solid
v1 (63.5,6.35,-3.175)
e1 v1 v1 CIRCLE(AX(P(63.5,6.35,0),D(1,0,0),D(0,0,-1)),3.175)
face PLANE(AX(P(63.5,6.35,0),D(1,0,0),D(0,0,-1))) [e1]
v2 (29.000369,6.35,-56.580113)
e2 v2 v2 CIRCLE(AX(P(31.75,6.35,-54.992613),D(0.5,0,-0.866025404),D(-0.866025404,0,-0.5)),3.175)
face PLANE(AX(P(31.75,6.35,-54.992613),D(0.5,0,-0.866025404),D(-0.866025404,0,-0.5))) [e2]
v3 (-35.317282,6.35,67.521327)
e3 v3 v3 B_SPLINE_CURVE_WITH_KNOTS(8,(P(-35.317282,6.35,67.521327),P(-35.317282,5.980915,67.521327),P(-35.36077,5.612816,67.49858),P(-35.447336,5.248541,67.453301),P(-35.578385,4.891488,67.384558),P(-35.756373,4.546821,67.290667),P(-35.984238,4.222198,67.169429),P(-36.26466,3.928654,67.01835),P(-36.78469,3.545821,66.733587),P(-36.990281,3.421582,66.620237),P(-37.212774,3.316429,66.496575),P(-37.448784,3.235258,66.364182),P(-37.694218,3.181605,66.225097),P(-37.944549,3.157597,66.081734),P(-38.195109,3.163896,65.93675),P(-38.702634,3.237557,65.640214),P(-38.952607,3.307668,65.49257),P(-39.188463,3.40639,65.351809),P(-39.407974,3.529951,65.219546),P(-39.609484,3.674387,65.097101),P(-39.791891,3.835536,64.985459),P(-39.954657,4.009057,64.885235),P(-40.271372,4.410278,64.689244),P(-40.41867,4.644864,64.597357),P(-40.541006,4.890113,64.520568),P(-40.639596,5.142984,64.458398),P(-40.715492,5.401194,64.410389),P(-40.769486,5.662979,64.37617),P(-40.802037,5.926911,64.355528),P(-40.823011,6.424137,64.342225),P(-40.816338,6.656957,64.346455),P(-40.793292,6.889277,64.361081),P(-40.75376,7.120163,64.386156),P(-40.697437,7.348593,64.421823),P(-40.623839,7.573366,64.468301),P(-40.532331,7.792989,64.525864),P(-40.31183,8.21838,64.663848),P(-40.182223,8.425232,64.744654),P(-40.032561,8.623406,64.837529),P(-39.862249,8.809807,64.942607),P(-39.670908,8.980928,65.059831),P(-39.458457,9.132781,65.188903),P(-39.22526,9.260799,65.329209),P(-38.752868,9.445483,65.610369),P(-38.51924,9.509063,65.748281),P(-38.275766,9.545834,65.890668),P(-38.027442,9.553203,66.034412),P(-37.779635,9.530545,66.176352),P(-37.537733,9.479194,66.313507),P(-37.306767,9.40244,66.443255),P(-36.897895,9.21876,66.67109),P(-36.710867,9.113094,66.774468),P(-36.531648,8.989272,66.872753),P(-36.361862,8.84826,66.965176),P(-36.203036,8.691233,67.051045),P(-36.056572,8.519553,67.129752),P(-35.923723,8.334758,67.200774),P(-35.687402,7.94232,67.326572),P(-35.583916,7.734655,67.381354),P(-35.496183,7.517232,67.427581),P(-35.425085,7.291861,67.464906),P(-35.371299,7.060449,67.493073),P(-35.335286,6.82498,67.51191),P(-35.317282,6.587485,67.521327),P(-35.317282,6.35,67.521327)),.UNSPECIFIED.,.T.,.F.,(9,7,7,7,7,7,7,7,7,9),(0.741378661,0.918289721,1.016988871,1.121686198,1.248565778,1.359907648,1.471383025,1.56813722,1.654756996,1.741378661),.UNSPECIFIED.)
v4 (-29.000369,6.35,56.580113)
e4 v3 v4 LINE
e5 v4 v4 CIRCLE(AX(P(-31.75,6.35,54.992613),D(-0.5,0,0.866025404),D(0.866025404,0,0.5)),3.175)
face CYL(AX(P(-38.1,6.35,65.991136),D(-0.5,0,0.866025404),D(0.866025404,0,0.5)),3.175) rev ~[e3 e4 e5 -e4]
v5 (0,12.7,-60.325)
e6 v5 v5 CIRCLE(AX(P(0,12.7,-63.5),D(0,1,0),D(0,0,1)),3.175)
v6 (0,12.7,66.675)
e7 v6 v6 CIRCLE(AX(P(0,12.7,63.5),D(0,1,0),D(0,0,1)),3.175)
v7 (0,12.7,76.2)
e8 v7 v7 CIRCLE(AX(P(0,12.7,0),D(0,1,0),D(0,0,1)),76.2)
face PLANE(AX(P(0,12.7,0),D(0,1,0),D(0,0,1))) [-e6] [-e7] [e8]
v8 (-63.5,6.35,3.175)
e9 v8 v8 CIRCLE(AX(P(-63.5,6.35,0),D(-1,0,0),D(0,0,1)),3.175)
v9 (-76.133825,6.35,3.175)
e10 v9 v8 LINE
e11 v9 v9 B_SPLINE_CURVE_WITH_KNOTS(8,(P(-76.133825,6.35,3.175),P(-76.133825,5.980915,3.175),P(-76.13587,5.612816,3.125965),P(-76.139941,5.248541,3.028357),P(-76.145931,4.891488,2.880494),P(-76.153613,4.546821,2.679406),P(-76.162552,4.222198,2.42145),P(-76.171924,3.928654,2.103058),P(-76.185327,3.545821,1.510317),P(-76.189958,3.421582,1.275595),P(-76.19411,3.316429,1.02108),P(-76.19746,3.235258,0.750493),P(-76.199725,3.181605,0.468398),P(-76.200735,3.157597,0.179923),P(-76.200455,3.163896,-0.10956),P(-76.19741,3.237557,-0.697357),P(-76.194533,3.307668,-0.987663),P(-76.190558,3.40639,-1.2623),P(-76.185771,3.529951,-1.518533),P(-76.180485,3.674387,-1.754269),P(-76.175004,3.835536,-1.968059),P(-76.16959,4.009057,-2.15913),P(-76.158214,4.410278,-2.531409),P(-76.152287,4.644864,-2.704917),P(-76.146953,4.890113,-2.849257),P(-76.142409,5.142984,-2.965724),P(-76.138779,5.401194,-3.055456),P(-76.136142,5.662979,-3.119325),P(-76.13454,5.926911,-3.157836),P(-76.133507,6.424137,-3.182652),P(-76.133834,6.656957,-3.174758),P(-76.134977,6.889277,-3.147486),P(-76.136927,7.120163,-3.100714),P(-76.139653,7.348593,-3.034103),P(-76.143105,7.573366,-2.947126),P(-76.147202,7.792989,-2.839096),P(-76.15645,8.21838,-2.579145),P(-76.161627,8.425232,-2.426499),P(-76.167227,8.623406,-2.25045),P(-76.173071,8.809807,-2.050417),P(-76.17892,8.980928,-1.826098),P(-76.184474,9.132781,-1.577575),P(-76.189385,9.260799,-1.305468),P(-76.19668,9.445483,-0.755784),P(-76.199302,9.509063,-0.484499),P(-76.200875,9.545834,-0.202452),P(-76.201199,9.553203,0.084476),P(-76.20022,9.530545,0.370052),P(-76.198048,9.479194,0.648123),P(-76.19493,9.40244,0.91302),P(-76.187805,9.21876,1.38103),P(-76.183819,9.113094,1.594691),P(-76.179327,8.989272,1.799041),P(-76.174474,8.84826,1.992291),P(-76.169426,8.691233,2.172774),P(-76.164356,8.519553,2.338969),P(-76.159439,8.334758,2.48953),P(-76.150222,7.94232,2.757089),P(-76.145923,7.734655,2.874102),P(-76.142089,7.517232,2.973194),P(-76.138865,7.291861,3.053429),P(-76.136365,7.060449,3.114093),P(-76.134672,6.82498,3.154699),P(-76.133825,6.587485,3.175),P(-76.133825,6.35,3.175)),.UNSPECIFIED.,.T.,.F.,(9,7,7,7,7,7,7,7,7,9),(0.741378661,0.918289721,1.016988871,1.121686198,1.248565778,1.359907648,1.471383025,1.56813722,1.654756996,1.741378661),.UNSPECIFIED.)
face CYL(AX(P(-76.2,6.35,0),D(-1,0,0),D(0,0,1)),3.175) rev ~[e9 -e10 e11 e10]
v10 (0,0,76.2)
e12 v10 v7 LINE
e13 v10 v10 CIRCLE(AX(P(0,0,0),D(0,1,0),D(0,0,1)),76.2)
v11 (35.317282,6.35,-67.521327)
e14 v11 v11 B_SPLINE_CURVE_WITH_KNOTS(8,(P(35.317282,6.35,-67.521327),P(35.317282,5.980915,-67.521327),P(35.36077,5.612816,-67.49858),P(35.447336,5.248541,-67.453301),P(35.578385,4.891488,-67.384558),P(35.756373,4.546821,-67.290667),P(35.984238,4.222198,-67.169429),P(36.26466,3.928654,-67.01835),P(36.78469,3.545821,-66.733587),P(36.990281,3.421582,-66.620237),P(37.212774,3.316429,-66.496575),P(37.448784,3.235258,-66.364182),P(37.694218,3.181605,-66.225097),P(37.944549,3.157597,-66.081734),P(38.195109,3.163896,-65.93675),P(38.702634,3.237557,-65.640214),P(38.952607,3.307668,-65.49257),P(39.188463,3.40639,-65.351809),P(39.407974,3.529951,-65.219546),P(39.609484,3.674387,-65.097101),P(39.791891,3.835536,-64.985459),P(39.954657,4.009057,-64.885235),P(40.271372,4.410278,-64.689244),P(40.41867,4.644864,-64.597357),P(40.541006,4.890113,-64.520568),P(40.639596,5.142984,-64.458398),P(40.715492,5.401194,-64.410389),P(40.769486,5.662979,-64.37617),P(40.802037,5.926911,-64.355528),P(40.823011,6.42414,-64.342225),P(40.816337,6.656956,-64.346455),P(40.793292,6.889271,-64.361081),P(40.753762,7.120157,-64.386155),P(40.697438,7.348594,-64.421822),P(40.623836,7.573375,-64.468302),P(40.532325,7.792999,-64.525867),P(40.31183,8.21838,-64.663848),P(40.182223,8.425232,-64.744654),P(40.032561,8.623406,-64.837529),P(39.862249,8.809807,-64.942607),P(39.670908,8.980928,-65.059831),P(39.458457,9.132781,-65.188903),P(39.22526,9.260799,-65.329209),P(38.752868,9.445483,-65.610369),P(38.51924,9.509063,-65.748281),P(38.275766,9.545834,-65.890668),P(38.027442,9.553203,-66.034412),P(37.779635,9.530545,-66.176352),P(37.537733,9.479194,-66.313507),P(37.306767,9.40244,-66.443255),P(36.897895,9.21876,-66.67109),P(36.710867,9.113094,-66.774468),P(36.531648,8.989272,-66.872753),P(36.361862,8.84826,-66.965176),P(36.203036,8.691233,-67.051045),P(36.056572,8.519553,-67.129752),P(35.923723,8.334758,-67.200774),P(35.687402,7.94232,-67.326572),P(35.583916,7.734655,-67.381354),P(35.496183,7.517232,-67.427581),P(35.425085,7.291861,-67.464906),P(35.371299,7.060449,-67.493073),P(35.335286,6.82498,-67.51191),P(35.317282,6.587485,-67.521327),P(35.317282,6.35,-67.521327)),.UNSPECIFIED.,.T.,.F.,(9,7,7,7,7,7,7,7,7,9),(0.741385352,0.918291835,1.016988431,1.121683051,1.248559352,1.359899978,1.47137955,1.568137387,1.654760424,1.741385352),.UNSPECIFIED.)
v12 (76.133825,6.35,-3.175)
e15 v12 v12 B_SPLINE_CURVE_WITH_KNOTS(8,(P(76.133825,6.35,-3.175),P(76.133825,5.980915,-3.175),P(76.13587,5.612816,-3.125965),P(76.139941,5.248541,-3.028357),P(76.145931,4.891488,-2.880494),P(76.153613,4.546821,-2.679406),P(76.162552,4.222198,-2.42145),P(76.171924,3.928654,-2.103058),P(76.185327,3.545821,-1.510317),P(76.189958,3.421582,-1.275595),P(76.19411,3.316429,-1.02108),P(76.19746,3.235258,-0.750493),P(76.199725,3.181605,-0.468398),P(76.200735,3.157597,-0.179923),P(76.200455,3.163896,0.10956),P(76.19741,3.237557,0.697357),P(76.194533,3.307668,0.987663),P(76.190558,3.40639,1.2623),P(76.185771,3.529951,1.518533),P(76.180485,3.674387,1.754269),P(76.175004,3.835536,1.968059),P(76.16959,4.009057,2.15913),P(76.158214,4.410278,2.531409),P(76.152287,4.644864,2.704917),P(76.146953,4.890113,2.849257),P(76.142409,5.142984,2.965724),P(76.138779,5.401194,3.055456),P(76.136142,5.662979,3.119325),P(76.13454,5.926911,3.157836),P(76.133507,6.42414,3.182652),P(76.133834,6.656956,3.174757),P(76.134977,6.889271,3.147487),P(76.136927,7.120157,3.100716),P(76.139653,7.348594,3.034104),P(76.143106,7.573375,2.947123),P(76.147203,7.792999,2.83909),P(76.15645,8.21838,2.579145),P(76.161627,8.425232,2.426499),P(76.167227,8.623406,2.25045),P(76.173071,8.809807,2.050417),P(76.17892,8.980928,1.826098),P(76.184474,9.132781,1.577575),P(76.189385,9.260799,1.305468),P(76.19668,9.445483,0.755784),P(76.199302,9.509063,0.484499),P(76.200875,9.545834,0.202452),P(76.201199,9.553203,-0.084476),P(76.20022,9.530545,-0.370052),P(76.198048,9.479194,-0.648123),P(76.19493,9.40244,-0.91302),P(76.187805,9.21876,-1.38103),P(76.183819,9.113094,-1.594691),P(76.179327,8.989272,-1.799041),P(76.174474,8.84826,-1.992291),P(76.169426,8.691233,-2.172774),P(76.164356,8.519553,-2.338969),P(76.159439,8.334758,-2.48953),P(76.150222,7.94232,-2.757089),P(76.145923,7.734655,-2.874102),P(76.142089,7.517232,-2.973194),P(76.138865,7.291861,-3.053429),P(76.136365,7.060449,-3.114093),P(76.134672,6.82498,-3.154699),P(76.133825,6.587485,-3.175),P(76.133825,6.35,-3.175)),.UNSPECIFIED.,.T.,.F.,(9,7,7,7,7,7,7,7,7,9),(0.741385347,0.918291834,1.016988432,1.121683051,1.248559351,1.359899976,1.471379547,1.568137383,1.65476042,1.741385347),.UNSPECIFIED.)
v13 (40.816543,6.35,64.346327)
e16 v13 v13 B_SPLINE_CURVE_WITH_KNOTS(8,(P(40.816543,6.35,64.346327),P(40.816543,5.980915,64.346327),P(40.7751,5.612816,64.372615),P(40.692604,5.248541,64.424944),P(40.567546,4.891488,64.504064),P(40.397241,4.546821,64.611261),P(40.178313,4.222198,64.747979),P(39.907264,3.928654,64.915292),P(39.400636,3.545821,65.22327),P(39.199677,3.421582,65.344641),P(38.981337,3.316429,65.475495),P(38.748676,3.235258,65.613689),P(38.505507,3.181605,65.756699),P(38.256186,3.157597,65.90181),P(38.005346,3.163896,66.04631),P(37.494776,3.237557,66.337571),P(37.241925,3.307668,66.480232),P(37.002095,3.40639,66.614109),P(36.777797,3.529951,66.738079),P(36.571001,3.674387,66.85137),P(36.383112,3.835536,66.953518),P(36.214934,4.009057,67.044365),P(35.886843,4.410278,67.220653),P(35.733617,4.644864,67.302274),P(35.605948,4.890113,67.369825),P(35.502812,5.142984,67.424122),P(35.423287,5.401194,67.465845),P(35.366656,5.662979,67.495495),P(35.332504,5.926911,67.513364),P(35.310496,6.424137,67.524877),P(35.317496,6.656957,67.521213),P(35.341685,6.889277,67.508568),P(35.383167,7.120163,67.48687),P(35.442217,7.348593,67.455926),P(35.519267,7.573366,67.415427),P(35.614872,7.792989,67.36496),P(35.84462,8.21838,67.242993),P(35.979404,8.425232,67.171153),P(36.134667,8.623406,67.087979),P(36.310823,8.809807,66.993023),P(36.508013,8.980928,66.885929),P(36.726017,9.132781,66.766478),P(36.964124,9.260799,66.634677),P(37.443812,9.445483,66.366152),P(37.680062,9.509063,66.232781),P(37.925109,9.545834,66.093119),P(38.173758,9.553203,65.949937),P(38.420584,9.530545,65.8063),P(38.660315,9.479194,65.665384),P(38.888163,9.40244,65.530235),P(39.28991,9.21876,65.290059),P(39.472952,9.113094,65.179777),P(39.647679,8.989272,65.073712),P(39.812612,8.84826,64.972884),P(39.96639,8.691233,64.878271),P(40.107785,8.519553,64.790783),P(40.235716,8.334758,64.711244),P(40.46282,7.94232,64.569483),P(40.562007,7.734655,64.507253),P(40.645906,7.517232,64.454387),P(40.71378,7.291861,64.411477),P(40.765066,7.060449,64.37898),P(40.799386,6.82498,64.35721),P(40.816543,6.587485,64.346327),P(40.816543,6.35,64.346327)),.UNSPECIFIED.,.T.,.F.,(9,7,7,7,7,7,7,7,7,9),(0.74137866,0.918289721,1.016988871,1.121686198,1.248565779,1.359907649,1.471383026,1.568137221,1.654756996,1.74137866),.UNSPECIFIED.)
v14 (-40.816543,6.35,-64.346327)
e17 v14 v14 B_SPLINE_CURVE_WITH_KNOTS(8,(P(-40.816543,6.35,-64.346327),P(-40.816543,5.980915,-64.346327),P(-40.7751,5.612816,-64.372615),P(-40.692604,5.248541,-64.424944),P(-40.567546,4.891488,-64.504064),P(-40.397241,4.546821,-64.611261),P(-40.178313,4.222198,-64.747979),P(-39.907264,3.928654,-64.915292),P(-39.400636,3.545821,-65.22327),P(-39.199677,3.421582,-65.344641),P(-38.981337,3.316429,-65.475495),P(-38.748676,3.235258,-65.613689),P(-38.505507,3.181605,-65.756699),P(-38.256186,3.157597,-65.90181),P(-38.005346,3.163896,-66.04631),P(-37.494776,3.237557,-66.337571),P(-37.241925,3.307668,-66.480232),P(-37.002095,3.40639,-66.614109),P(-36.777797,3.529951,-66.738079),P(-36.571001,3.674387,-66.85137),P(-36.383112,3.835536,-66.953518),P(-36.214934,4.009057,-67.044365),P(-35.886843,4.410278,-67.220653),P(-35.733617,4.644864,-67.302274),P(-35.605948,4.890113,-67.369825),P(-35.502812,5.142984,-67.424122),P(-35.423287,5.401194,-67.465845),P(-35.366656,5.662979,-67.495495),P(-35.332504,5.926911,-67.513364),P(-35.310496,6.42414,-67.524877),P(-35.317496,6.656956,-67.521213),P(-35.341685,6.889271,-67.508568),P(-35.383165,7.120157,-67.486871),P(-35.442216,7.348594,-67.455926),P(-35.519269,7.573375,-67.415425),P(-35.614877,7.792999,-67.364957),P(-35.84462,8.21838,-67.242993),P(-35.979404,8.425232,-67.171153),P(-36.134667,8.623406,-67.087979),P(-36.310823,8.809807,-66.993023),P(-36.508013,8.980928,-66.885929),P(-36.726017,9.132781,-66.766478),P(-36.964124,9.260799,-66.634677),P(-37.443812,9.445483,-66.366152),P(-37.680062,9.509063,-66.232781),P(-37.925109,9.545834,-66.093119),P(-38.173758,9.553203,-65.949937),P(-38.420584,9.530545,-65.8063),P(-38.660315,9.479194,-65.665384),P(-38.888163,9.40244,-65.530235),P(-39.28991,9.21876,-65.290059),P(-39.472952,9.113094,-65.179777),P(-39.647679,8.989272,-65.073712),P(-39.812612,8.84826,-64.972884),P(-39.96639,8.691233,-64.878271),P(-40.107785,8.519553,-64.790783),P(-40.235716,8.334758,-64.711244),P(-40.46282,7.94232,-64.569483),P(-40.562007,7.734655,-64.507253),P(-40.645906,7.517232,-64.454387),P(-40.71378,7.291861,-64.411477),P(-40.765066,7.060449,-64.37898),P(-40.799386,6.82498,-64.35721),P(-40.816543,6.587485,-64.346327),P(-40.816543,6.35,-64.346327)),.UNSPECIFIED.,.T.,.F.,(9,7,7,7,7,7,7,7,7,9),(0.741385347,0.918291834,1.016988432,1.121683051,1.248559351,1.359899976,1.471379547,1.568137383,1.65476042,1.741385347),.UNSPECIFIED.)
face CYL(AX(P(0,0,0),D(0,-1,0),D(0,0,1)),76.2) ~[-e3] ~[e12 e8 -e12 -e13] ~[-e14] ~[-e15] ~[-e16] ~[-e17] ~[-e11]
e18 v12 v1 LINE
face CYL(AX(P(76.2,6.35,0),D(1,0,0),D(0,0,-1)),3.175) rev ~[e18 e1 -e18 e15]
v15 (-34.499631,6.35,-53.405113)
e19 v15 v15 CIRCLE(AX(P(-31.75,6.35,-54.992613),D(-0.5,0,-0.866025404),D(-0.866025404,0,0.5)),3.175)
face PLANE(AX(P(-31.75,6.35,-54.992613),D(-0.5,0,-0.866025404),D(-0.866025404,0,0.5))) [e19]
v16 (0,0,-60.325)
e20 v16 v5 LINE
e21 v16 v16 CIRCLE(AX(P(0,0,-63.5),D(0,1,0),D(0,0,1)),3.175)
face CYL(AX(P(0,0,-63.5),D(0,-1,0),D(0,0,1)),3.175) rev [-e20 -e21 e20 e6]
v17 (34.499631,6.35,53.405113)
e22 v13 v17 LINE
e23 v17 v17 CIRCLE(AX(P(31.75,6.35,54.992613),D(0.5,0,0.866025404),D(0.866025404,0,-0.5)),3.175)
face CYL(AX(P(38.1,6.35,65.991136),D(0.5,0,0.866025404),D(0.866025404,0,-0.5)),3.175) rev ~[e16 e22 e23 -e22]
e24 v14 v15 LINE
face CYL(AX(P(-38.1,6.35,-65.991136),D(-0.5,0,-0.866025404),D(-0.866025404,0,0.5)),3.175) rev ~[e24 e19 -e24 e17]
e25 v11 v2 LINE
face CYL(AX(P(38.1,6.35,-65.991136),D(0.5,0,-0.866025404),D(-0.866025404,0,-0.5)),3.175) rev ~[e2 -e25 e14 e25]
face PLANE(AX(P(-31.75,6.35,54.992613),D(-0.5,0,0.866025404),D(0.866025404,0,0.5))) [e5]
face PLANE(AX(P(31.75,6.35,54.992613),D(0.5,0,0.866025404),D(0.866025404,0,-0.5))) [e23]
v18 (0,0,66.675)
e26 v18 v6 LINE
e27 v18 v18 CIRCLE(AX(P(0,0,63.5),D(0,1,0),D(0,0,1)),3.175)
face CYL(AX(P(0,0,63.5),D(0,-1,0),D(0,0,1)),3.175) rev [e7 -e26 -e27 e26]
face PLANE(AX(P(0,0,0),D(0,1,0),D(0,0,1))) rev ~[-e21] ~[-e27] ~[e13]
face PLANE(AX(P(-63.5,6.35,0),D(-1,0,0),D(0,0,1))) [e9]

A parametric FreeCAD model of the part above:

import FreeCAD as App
import Part
import Sketcher

V = App.Vector
Q = App.Units.Quantity

doc = App.newDocument("Part")
params = doc.addObject("Spreadsheet::Sheet", "Params")
for row, (alias, value) in enumerate([
    ("sketch1_diameter", "6 in"),
    ("sketch1_diameter2", "0.25 in"),
    ("pad1_length", "0.5 in"),
    ("sketch2_diameter", "0.25 in"),
    ("pocket1_length", "0.5 in"),
], start=1):
    params.set(f"A{row}", alias)
    params.set(f"B{row}", "=" + value)
    params.setAlias(f"B{row}", alias)

body = doc.addObject("PartDesign::Body", "Body")

sketch1 = body.newObject("Sketcher::SketchObject", "Sketch")
sketch1.AttachmentSupport = (doc.getObject("XZ_Plane"), [""])
sketch1.MapMode = "FlatFace"
sketch1.addGeometry(Part.Circle(V(0, 0, 0), V(0, 0, 1), 76.2), False)
sketch1.addGeometry(Part.Circle(V(0, -63.5, 0), V(0, 0, 1), 3.175), False)
sketch1.addGeometry(Part.Circle(V(0, 63.5, 0), V(0, 0, 1), 3.175), False)
sketch1.addConstraint(Sketcher.Constraint("Coincident", 0, 3, -1, 1))
sketch1.addConstraint(Sketcher.Constraint("Equal", 1, 2))
sketch1.addConstraint(Sketcher.Constraint("Symmetric", 1, 3, 2, 3, -1, 1))
sketch1.addConstraint(Sketcher.Constraint("PointOnObject", 1, 3, -2))
sketch1.addConstraint(Sketcher.Constraint("Diameter", 0, Q("6 in")))
sketch1.addConstraint(Sketcher.Constraint("Diameter", 1, Q("0.25 in")))
sketch1.addConstraint(Sketcher.Constraint("DistanceY", 1, 3, 2, 3, Q("5 in")))
sketch1.setExpression("Constraints[4]", "Params.sketch1_diameter")
sketch1.setExpression("Constraints[5]", "Params.sketch1_diameter2")
pad1 = body.newObject("PartDesign::Pad", "Pad")
pad1.Profile = sketch1
pad1.setExpression("Length", "Params.pad1_length")
pad1.Reversed = True

sketch2 = body.newObject("Sketcher::SketchObject", "Sketch001")
sketch2.AttachmentSupport = (doc.getObject("YZ_Plane"), [""])
sketch2.MapMode = "FlatFace"
sketch2.AttachmentOffset = App.Placement(V(0, 0, 3 * 25.4), App.Rotation())
sketch2.addGeometry(Part.Circle(V(6.35, 0, 0), V(0, 0, 1), 3.175), False)
sketch2.addConstraint(Sketcher.Constraint("PointOnObject", 0, 3, -1))
sketch2.addConstraint(Sketcher.Constraint("Diameter", 0, Q("0.25 in")))
sketch2.addConstraint(Sketcher.Constraint("DistanceX", -1, 1, 0, 3, Q("0.25 in")))
sketch2.setExpression("Constraints[1]", "Params.sketch2_diameter")
pocket1 = body.newObject("PartDesign::Pocket", "Pocket")
pocket1.Profile = sketch2
pocket1.setExpression("Length", "Params.pocket1_length")
doc.recompute()

polarpattern = body.newObject("PartDesign::PolarPattern", "PolarPattern")
polarpattern.Originals = [pocket1]
polarpattern.Axis = (doc.getObject("Y_Axis"), [""])
polarpattern.Angle = 360
polarpattern.Occurrences = 6
body.Tip = polarpattern

doc.recompute()
